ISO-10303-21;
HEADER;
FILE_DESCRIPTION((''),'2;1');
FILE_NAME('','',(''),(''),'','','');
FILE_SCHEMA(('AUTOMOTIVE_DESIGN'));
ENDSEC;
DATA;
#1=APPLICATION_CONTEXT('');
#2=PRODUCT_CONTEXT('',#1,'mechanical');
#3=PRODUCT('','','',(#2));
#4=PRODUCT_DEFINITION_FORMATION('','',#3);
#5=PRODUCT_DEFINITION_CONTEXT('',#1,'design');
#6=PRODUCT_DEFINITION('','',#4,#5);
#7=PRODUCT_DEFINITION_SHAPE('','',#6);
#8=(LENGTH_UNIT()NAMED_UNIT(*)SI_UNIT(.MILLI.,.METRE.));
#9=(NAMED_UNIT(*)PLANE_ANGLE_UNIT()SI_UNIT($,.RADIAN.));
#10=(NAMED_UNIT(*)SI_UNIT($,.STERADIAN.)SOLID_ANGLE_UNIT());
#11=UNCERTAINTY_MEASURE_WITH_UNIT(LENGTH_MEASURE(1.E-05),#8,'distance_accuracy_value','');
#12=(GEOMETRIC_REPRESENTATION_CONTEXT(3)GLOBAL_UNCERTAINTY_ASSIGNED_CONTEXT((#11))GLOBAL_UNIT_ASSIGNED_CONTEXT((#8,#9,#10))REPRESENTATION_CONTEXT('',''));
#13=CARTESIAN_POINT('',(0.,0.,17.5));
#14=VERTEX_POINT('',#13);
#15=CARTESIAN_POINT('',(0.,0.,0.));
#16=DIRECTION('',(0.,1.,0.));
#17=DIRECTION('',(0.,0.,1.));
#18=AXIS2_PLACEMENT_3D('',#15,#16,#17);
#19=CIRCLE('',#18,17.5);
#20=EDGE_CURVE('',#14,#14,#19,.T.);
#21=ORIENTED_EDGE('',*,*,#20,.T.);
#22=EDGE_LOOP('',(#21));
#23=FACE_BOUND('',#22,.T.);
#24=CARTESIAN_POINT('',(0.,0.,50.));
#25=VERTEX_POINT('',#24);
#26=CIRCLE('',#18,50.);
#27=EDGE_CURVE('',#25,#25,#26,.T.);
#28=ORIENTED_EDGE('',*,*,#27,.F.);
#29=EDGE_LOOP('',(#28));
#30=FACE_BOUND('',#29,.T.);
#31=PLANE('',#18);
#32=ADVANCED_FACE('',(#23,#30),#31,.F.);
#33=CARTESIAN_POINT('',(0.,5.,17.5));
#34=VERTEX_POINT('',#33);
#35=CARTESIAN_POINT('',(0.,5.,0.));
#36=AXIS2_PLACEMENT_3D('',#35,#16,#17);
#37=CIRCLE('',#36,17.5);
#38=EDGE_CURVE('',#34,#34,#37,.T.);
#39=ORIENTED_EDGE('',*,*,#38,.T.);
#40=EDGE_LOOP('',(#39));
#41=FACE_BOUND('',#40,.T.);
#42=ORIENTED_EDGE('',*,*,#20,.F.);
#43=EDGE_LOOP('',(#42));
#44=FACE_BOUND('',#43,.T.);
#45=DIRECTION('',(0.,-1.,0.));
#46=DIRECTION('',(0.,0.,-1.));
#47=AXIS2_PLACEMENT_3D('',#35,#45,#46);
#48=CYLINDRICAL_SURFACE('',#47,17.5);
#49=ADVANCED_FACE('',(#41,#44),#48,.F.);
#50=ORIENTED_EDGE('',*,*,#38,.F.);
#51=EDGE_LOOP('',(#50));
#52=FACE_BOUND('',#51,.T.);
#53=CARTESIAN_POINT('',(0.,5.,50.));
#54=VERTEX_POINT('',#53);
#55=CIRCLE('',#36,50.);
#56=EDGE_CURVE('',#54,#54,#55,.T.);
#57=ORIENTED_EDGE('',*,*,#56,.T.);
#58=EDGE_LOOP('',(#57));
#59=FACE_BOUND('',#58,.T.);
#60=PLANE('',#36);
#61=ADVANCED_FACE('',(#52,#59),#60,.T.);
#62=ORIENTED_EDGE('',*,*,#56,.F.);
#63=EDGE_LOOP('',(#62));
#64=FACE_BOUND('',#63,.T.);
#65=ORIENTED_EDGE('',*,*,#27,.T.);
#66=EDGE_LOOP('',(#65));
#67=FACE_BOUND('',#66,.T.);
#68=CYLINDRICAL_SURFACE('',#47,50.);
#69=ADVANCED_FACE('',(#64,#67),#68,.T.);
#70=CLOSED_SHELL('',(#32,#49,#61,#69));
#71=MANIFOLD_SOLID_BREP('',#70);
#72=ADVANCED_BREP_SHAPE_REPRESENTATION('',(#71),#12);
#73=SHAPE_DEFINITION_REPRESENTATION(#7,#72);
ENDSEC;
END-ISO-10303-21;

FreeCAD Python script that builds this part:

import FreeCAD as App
import Part
import Sketcher
Q = App.Units.Quantity

doc = App.newDocument("Part")
body = doc.addObject("PartDesign::Body", "Body")

# Sketch on XZ plane
sketch1 = body.newObject("Sketcher::SketchObject", "Sketch")
sketch1.AttachmentSupport = (doc.getObject("XZ_Plane"), [""])
sketch1.MapMode = "FlatFace"
sketch1.addGeometry([
    Part.Circle(App.Vector(0, 0, 0), App.Vector(0, 0, 1), 50),
    Part.Circle(App.Vector(0, 0, 0), App.Vector(0, 0, 1), 18),
], False)
sketch1.addConstraint([
    Sketcher.Constraint("Coincident", 0, 3, -1, 1),
    Sketcher.Constraint("Coincident", 1, 3, -1, 1),
    Sketcher.Constraint("Diameter", 0, Q("100 mm")),
    Sketcher.Constraint("Diameter", 1, Q("35 mm")),
])
pad1 = body.newObject("PartDesign::Pad", "Pad")
pad1.Profile = sketch1
pad1.Length = 5
pad1.Reversed = True

doc.recompute()
